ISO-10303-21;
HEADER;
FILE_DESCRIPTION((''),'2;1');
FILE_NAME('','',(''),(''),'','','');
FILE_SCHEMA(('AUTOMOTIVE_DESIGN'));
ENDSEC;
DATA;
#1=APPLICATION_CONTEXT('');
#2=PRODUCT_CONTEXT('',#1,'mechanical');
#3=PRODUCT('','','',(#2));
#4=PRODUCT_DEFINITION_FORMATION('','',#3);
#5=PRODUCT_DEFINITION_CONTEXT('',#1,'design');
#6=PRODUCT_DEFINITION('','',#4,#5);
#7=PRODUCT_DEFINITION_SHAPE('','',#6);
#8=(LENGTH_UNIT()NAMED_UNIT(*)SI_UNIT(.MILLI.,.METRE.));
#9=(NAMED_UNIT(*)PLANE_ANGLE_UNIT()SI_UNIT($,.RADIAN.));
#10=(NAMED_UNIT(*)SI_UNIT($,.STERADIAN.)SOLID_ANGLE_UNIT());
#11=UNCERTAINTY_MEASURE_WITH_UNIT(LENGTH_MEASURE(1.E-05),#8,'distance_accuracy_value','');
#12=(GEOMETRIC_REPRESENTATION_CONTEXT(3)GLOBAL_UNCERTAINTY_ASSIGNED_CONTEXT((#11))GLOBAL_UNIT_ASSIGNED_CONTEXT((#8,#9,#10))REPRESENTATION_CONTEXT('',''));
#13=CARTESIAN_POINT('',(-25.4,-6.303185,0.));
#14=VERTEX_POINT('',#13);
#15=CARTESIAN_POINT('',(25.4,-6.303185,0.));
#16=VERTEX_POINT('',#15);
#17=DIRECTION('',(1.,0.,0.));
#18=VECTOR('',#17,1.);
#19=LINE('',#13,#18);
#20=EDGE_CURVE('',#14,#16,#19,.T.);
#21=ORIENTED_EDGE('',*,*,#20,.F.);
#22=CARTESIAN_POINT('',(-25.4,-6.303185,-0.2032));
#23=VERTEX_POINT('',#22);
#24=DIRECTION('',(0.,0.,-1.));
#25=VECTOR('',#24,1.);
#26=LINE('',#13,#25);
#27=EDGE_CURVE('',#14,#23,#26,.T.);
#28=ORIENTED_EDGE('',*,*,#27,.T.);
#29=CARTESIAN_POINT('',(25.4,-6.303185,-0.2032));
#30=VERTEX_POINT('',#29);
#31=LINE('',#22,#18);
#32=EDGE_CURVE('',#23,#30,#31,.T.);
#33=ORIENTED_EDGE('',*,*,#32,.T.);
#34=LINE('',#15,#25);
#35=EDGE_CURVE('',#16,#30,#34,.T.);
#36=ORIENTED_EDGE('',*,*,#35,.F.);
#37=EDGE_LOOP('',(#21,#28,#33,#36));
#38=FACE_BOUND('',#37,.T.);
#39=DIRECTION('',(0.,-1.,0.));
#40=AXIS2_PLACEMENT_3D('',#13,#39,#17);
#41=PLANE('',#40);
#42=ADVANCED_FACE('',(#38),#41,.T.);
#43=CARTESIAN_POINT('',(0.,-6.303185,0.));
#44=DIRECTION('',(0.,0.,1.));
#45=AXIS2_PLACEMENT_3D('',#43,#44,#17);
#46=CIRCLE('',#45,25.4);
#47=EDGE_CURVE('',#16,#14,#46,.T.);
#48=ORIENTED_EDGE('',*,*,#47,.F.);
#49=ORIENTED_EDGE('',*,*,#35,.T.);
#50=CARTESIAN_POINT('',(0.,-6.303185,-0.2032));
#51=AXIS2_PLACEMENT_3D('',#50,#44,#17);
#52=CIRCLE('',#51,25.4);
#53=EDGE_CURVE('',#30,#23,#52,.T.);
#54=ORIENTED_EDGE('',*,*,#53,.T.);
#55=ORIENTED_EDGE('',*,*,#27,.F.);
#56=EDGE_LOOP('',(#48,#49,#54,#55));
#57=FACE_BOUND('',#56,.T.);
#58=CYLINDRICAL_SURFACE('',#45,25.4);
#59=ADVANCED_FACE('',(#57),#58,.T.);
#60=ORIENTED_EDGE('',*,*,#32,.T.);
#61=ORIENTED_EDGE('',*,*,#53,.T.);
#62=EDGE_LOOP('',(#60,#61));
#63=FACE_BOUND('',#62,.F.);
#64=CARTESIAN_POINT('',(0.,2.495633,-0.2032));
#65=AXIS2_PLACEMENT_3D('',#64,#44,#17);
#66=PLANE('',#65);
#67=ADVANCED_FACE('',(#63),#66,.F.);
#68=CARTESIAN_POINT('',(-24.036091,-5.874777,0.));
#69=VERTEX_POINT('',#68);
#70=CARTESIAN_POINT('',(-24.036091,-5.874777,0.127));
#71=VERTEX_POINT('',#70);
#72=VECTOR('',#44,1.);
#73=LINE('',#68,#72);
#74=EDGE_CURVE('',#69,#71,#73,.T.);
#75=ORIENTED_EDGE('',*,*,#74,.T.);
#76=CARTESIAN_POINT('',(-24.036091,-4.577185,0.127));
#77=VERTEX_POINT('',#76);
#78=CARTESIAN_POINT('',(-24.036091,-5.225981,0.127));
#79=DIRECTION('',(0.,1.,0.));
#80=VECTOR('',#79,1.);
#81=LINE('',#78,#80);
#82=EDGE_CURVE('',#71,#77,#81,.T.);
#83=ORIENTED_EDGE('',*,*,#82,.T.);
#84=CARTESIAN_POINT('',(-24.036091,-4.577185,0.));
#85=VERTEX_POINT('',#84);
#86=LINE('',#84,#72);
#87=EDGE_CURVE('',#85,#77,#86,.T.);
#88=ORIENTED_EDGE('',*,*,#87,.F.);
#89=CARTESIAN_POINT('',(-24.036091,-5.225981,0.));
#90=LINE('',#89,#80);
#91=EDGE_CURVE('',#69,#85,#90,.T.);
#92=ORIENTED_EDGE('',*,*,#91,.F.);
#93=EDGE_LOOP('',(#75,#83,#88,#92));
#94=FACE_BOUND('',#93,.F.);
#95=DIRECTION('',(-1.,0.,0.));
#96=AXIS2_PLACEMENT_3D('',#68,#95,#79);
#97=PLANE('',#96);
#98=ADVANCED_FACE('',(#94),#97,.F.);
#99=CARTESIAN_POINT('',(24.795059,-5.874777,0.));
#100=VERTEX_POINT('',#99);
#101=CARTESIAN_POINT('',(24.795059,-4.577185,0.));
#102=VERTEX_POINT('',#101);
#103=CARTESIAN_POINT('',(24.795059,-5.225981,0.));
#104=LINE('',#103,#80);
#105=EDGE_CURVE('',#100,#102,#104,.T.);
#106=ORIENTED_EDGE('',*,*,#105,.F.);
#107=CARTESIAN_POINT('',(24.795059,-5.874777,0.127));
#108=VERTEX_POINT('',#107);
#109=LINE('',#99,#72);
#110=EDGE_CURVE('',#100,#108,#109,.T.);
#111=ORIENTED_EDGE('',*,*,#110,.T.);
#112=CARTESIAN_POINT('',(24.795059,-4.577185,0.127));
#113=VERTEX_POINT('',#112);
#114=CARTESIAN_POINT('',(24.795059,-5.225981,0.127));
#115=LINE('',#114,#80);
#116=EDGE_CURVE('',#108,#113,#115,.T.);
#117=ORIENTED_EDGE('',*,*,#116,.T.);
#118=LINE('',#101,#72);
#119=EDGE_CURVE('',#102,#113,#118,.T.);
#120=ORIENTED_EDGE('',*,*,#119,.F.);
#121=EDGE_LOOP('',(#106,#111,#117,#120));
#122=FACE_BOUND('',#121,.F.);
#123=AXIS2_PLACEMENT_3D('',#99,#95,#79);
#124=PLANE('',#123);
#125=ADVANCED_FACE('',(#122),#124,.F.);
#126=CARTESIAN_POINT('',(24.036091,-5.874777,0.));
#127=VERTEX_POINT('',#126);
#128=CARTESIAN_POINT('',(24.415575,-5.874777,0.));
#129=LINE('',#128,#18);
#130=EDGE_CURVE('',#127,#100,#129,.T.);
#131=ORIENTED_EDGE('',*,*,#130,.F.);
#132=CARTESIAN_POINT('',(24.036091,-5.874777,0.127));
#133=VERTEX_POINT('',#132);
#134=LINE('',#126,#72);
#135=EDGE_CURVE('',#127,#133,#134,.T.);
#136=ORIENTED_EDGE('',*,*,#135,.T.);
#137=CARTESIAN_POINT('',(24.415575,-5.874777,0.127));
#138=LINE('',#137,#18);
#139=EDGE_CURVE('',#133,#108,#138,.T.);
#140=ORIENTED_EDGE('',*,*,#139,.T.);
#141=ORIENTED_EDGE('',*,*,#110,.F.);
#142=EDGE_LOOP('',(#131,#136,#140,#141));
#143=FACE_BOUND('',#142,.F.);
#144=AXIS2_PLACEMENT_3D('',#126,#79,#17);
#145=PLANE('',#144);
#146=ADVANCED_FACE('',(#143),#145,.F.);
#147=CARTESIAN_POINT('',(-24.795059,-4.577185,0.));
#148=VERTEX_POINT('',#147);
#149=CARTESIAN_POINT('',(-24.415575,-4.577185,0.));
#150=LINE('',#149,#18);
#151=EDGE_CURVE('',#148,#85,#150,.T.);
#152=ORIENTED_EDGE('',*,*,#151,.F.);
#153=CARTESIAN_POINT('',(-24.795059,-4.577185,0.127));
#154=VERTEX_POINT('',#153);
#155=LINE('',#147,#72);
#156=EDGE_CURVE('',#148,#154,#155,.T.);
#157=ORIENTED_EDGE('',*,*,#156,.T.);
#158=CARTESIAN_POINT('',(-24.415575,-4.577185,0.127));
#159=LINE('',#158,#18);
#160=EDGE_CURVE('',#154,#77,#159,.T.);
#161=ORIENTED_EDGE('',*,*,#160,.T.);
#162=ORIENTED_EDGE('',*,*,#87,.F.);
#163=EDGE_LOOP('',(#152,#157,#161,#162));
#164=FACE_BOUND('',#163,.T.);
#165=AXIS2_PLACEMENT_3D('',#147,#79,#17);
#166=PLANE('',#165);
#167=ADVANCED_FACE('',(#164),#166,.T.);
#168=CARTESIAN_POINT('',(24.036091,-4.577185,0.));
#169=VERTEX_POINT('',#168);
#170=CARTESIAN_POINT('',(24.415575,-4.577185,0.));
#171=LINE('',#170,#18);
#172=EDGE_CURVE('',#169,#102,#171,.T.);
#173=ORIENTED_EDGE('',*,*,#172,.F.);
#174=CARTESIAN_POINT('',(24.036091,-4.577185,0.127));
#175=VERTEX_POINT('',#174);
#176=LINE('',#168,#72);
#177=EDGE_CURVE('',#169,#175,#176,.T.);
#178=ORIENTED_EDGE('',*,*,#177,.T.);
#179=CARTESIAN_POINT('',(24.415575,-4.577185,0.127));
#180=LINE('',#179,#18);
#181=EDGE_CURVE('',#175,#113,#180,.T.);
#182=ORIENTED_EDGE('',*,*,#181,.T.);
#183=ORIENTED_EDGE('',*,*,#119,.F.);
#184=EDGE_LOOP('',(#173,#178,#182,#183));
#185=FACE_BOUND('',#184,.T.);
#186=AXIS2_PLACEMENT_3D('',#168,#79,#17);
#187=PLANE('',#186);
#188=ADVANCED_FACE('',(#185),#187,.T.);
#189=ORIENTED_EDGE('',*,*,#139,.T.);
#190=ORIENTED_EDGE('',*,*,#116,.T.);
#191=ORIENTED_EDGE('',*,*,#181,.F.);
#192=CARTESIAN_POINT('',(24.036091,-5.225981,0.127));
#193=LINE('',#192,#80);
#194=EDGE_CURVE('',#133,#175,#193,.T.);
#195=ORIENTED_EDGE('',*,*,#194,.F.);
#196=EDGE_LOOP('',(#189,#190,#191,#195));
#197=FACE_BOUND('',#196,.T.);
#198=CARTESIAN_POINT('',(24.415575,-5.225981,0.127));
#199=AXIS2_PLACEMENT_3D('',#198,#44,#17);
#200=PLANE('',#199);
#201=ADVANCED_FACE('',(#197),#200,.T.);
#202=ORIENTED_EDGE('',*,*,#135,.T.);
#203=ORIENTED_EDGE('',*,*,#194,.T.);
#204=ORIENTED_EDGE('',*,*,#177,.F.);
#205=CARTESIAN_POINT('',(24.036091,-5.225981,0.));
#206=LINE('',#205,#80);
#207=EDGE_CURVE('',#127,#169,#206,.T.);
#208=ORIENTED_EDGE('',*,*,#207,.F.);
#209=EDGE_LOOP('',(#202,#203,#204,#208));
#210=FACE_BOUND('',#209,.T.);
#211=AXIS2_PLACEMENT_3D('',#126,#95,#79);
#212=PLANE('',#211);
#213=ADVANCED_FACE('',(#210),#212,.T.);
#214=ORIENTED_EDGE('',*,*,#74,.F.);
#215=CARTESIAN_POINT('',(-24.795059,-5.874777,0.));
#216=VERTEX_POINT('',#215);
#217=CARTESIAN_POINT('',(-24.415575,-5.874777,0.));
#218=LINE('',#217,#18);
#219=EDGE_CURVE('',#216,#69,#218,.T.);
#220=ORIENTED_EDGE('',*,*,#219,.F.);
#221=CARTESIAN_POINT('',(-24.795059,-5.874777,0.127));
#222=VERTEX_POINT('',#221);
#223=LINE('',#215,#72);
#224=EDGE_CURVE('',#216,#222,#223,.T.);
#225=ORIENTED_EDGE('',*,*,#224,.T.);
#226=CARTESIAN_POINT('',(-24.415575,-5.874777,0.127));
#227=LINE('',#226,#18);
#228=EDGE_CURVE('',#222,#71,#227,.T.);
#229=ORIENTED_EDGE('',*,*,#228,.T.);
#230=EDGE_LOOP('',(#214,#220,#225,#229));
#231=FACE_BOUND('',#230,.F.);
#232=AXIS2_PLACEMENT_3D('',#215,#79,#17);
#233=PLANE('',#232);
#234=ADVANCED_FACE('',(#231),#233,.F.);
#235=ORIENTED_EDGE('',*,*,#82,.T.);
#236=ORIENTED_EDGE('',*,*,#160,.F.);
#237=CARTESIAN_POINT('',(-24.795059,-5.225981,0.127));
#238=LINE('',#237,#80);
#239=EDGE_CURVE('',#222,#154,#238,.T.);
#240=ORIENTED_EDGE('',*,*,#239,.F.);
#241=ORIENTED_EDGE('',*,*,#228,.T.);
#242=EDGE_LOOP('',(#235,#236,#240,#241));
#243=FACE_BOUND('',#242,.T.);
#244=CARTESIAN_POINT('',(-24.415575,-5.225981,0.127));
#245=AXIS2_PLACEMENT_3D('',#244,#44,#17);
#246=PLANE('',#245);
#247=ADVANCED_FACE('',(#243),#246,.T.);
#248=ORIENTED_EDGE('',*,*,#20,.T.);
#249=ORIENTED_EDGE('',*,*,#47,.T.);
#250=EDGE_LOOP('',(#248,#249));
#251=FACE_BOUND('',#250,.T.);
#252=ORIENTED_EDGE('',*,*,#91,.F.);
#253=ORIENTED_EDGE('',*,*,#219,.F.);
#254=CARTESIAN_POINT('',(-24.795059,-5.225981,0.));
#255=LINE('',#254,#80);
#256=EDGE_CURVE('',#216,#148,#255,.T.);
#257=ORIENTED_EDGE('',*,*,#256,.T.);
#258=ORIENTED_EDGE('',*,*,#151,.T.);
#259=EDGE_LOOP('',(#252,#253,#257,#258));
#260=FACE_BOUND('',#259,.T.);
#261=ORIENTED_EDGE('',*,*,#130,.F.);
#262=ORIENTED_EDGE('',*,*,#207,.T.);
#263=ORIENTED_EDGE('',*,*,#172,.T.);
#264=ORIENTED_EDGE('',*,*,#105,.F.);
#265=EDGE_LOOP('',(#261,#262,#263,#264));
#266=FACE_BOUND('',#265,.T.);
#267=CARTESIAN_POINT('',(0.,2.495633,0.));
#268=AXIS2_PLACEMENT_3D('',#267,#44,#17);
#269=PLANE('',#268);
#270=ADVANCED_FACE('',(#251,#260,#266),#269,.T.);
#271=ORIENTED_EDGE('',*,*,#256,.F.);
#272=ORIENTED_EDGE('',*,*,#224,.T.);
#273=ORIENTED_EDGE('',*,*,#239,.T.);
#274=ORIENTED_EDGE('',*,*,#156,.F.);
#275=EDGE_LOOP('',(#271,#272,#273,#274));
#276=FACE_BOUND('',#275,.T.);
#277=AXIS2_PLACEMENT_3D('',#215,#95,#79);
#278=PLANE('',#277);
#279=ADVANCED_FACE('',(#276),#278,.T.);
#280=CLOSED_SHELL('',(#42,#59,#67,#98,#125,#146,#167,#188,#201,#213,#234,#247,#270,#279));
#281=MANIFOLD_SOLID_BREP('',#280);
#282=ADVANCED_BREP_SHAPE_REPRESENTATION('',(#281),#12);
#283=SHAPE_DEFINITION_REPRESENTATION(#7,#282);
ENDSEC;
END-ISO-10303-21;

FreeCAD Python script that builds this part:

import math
import FreeCAD as App
import Part
import Sketcher

V = App.Vector
Q = App.Units.Quantity

doc = App.newDocument("Part")
params = doc.addObject("Spreadsheet::Sheet", "Params")
for row, (alias, value) in enumerate([
    ("sketch1_radius", "1 in"),
    ("pad1_length", "0.008 in"),
    ("pad2_length", "0.005 in"),
], start=1):
    params.set(f"A{row}", alias)
    params.set(f"B{row}", "=" + value)
    params.setAlias(f"B{row}", alias)

body = doc.addObject("PartDesign::Body", "Body")

sketch1 = body.newObject("Sketcher::SketchObject", "Sketch")
sketch1.AttachmentSupport = (doc.getObject("XY_Plane"), [""])
sketch1.MapMode = "FlatFace"
sketch1.addGeometry(Part.ArcOfCircle(Part.Circle(V(0, -6, 0), V(0, 0, 1), 25), math.radians(0), math.radians(180)), False)
sketch1.addGeometry(Part.LineSegment(V(-25, -6, 0), V(25, -6, 0)), False)
sketch1.addConstraint(Sketcher.Constraint("Coincident", 0, 1, 1, 2))
sketch1.addConstraint(Sketcher.Constraint("Coincident", 1, 1, 0, 2))
sketch1.addConstraint(Sketcher.Constraint("Horizontal", 1))
sketch1.addConstraint(Sketcher.Constraint("PointOnObject", 0, 3, -2))
sketch1.addConstraint(Sketcher.Constraint("Radius", 0, Q("1 in")))
sketch1.addConstraint(Sketcher.Constraint("DistanceY", 0, 3, -1, 1, Q("6.303185 mm")))
sketch1.addConstraint(Sketcher.Constraint("DistanceY", 0, 1, -1, 1, Q("6.303185 mm")))
sketch1.setExpression("Constraints[4]", "Params.sketch1_radius")
pad1 = body.newObject("PartDesign::Pad", "Pad")
pad1.Profile = sketch1
pad1.setExpression("Length", "Params.pad1_length")
pad1.Reversed = True

sketch2 = body.newObject("Sketcher::SketchObject", "Sketch001")
sketch2.AttachmentSupport = (doc.getObject("XY_Plane"), [""])
sketch2.MapMode = "FlatFace"
sketch2.addGeometry(Part.LineSegment(V(-24.8, -4.6, 0), V(-24.8, -5.9, 0)), False)
sketch2.addGeometry(Part.LineSegment(V(-24.8, -5.9, 0), V(-24, -5.9, 0)), False)
sketch2.addGeometry(Part.LineSegment(V(-24, -5.9, 0), V(-24, -4.6, 0)), False)
sketch2.addGeometry(Part.LineSegment(V(-24, -4.6, 0), V(-24.8, -4.6, 0)), False)
sketch2.addGeometry(Part.LineSegment(V(24, -4.6, 0), V(24, -5.9, 0)), False)
sketch2.addGeometry(Part.LineSegment(V(24, -5.9, 0), V(24.8, -5.9, 0)), False)
sketch2.addGeometry(Part.LineSegment(V(24.8, -5.9, 0), V(24.8, -4.6, 0)), False)
sketch2.addGeometry(Part.LineSegment(V(24.8, -4.6, 0), V(24, -4.6, 0)), False)
sketch2.addConstraint(Sketcher.Constraint("Coincident", 0, 2, 1, 1))
sketch2.addConstraint(Sketcher.Constraint("Coincident", 1, 2, 2, 1))
sketch2.addConstraint(Sketcher.Constraint("Coincident", 2, 2, 3, 1))
sketch2.addConstraint(Sketcher.Constraint("Coincident", 3, 2, 0, 1))
sketch2.addConstraint(Sketcher.Constraint("Coincident", 4, 2, 5, 1))
sketch2.addConstraint(Sketcher.Constraint("Coincident", 5, 2, 6, 1))
sketch2.addConstraint(Sketcher.Constraint("Coincident", 6, 2, 7, 1))
sketch2.addConstraint(Sketcher.Constraint("Coincident", 7, 2, 4, 1))
sketch2.addConstraint(Sketcher.Constraint("Vertical", 0))
sketch2.addConstraint(Sketcher.Constraint("Horizontal", 1))
sketch2.addConstraint(Sketcher.Constraint("Vertical", 2))
sketch2.addConstraint(Sketcher.Constraint("Horizontal", 3))
sketch2.addConstraint(Sketcher.Constraint("Vertical", 4))
sketch2.addConstraint(Sketcher.Constraint("Horizontal", 5))
sketch2.addConstraint(Sketcher.Constraint("Vertical", 6))
sketch2.addConstraint(Sketcher.Constraint("Horizontal", 7))
sketch2.addConstraint(Sketcher.Constraint("Symmetric", 1, 2, 4, 2, -2))
sketch2.addConstraint(Sketcher.Constraint("Symmetric", 3, 2, 6, 2, -2))
sketch2.addConstraint(Sketcher.Constraint("DistanceY", 0, 2, 0, 1, Q("1.297592 mm")))
sketch2.addConstraint(Sketcher.Constraint("DistanceX", 1, 1, 1, 2, Q("0.758968 mm")))
sketch2.addConstraint(Sketcher.Constraint("DistanceX", 0, 2, -1, 1, Q("24.795059 mm")))
sketch2.addConstraint(Sketcher.Constraint("DistanceY", 0, 2, -1, 1, Q("5.874777 mm")))
pad2 = body.newObject("PartDesign::Pad", "Pad001")
pad2.Profile = sketch2
pad2.setExpression("Length", "Params.pad2_length")

doc.recompute()
